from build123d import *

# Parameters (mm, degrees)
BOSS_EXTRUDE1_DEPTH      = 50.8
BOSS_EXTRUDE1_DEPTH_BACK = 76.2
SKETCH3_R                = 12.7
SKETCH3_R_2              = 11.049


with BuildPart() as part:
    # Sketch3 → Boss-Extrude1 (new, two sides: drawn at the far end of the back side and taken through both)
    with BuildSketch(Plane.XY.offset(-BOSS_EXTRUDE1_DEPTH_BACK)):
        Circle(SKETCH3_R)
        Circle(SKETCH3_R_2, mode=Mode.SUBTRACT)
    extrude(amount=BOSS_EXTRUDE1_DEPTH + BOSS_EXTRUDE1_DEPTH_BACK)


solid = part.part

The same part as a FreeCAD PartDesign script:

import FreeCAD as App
import Part
import Sketcher
Q = App.Units.Quantity

doc = App.newDocument("Part")
body = doc.addObject("PartDesign::Body", "Body")

sketch1 = body.newObject("Sketcher::SketchObject", "Sketch")
sketch1.AttachmentSupport = (doc.getObject("XY_Plane"), [""])
sketch1.MapMode = "FlatFace"
sketch1.addGeometry(Part.Circle(App.Vector(0, 0, 0), App.Vector(0, 0, 1), 12.7), False)
sketch1.addGeometry(Part.Circle(App.Vector(0, 0, 0), App.Vector(0, 0, 1), 11.049), False)
sketch1.addConstraint(Sketcher.Constraint("Coincident", 0, 3, -1, 1))
sketch1.addConstraint(Sketcher.Constraint("Coincident", 1, 3, -1, 1))
sketch1.addConstraint(Sketcher.Constraint("Diameter", 0, Q("1 in")))
sketch1.addConstraint(Sketcher.Constraint("Diameter", 1, Q("0.87 in")))
pad1 = body.newObject("PartDesign::Pad", "Pad")
pad1.Profile = sketch1
pad1.Type = "TwoLengths"
pad1.Length = Q("2 in")
pad1.Length2 = Q("3 in")

doc.recompute()
